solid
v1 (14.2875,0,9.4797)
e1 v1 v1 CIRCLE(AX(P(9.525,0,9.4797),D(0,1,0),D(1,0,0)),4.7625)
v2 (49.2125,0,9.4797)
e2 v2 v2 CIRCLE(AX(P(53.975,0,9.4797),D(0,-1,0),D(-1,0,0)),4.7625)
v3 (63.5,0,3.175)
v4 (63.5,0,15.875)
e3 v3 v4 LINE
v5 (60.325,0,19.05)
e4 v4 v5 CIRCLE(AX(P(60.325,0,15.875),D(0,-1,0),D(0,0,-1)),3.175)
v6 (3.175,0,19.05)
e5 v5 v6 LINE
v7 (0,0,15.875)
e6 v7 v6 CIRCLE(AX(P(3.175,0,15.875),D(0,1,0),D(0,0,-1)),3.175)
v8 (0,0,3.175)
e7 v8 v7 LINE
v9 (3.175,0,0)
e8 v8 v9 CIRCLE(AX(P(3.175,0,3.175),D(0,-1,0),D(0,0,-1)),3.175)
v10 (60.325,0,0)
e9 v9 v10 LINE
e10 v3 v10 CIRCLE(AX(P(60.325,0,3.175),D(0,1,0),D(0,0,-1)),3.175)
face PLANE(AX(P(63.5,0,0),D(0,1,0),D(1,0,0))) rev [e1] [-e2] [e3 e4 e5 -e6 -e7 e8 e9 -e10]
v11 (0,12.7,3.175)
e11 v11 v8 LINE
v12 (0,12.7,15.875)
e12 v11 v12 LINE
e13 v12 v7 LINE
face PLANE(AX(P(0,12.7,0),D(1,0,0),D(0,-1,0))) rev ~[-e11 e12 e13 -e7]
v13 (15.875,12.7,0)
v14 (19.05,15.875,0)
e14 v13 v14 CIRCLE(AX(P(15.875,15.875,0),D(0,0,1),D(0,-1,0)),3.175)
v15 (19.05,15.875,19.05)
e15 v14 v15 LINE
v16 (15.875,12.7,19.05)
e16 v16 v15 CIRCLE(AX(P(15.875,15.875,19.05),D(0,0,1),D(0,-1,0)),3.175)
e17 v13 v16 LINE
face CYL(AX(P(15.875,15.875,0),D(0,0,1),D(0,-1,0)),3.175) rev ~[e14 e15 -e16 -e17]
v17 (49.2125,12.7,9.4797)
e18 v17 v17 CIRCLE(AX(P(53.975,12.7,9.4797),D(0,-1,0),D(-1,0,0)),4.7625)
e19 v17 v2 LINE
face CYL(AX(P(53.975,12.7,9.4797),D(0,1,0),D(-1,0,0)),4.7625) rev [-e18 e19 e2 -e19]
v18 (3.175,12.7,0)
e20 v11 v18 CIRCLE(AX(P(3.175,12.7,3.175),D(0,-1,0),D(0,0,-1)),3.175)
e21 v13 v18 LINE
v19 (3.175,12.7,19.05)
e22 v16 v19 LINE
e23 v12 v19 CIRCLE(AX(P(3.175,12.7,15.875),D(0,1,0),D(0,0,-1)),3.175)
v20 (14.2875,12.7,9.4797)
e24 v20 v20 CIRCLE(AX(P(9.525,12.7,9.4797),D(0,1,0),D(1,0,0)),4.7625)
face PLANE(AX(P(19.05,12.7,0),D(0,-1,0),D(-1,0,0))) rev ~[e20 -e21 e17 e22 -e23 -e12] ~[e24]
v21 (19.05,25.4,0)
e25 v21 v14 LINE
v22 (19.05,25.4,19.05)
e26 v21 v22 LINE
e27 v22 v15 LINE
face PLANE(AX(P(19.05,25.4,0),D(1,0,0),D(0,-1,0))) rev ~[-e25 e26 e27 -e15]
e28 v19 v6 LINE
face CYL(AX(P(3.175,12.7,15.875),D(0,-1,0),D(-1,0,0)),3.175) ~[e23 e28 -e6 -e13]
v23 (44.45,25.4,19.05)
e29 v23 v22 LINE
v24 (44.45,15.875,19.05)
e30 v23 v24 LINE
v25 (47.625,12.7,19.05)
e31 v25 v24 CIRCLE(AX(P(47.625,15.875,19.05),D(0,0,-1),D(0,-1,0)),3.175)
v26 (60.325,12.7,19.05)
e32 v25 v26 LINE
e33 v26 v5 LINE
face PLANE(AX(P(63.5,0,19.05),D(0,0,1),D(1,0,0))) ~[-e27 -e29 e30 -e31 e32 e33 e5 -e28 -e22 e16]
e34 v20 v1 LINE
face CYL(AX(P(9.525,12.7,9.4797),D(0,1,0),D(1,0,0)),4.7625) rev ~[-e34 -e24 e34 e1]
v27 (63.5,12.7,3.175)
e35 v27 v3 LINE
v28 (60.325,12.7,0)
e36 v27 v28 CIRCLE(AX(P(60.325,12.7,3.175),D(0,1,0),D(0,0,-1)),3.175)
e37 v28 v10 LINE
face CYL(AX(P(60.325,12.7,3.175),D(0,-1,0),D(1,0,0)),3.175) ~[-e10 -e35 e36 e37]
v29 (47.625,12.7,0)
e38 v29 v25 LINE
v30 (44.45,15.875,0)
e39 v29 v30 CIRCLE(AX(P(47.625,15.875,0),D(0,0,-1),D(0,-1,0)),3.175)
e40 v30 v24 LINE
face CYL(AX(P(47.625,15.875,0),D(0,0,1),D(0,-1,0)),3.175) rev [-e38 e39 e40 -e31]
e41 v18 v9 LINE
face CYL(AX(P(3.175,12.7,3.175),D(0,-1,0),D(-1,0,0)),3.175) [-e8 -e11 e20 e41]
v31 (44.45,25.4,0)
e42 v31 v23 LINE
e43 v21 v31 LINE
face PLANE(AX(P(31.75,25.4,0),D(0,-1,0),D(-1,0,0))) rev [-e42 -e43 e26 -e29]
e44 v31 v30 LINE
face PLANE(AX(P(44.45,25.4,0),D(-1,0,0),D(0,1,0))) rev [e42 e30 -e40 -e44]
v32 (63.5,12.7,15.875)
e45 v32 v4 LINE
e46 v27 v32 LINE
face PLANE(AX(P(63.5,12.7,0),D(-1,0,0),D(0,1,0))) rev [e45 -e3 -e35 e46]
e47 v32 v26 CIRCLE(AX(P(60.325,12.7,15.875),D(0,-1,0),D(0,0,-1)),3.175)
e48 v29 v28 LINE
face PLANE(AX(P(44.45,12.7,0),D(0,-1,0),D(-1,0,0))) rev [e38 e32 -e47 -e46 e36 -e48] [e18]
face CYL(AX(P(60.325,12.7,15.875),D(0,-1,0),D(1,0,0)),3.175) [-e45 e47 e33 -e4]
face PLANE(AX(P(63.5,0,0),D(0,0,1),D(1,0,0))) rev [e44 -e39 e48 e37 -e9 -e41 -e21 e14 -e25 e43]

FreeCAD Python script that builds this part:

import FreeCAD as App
import Part
import Sketcher
from FreeCAD import Vector
Q = App.Units.Quantity


def edges_at(feature, points):
    """Names of the edges that pass closest to the given points."""
    edges = feature.Shape.Edges
    near = lambda p: min(range(len(edges)), key=lambda i: edges[i].distToShape(Part.Vertex(*p))[0])
    return sorted({f"Edge{near(p) + 1}" for p in points})

doc = App.newDocument("Part")
body = doc.addObject("PartDesign::Body", "Body")

# Sketch on XY plane
sketch1 = doc.addObject("Sketcher::SketchObject", "Sketch")
body.addObject(sketch1)
sketch1.AttachmentSupport = (doc.XY_Plane, [""])
sketch1.MapMode = "FlatFace"
sketch1.addGeometry([
    Part.LineSegment(Vector(0, 12.7, 0), Vector(0, 0, 0)),  # 0
    Part.LineSegment(Vector(0, 0, 0), Vector(31.75, 0, 0)),  # 1
    Part.LineSegment(Vector(31.75, 0, 0), Vector(31.75, 25.4, 0)),  # 2
    Part.LineSegment(Vector(31.75, 25.4, 0), Vector(19.05, 25.4, 0)),  # 3
    Part.LineSegment(Vector(19.05, 25.4, 0), Vector(19.05, 12.7, 0)),  # 4
    Part.LineSegment(Vector(19.05, 12.7, 0), Vector(0, 12.7, 0)),  # 5
], False)
sketch1.addConstraint([
    Sketcher.Constraint("Coincident", 0, 2, 1, 1),
    Sketcher.Constraint("Coincident", 1, 2, 2, 1),
    Sketcher.Constraint("Coincident", 2, 2, 3, 1),
    Sketcher.Constraint("Coincident", 3, 2, 4, 1),
    Sketcher.Constraint("Coincident", 4, 2, 5, 1),
    Sketcher.Constraint("Coincident", 5, 2, 0, 1),
    Sketcher.Constraint("Vertical", 0),
    Sketcher.Constraint("Horizontal", 1),
    Sketcher.Constraint("Vertical", 2),
    Sketcher.Constraint("Horizontal", 3),
    Sketcher.Constraint("Vertical", 4),
    Sketcher.Constraint("Horizontal", 5),
    Sketcher.Constraint("Coincident", 0, 2, -1, 1),
    Sketcher.Constraint("Equal", 3, 0),
    Sketcher.Constraint("Equal", 0, 4),
    Sketcher.Constraint("DistanceY", 2, 1, 2, 2, Q("1 in")),
    Sketcher.Constraint("DistanceX", 1, 1, 1, 2, Q("1.25 in")),
])
pad1 = doc.addObject("PartDesign::Pad", "Pad")
body.addObject(pad1)
pad1.Profile = sketch1
pad1.Length = Q("0.75 in")
doc.recompute()

fillet = doc.addObject("PartDesign::Fillet", "Fillet")
body.addObject(fillet)
fillet.Base = (pad1, edges_at(pad1, [(0, 6.35, 19.05), (19.05, 12.7, 9.525), (0, 6.35, 0)]))
fillet.Radius = Q("0.125 in")

# Sketch on XZ plane
sketch2 = doc.addObject("Sketcher::SketchObject", "Sketch001")
body.addObject(sketch2)
sketch2.AttachmentSupport = (doc.XZ_Plane, [""])
sketch2.MapMode = "FlatFace"
sketch2.AttachmentOffset = App.Placement(Vector(0, 0, -0.5 * 25.4), App.Rotation())
sketch2.addGeometry(Part.Circle(Vector(9.525, 9.4797, 0), Vector(0, 0, 1), 4.7625), False)
sketch2.addConstraint([
    Sketcher.Constraint("Diameter", 0, Q("0.375 in")),
    Sketcher.Constraint("DistanceX", -1, 1, 0, 3, Q("0.375 in")),
    Sketcher.Constraint("DistanceY", -1, 1, 0, 3, Q("9.4797 mm")),
])
pocket1 = doc.addObject("PartDesign::Pocket", "Pocket")
body.addObject(pocket1)
pocket1.Profile = sketch2
pocket1.Length = Q("0.5 in")
pocket1.Reversed = True
doc.recompute()

datumplane = doc.addObject("PartDesign::Plane", "DatumPlane")
body.addObject(datumplane)
datumplane.AttachmentSupport = (doc.YZ_Plane, [""])
datumplane.MapMode = "FlatFace"
datumplane.AttachmentOffset = App.Placement(Vector(0, 0, 1.25 * 25.4), App.Rotation())
mirrored = doc.addObject("PartDesign::Mirrored", "Mirrored")
body.addObject(mirrored)
mirrored.Originals = [pad1, pocket1, fillet]
mirrored.MirrorPlane = (datumplane, [""])
body.Tip = mirrored

doc.recompute()
